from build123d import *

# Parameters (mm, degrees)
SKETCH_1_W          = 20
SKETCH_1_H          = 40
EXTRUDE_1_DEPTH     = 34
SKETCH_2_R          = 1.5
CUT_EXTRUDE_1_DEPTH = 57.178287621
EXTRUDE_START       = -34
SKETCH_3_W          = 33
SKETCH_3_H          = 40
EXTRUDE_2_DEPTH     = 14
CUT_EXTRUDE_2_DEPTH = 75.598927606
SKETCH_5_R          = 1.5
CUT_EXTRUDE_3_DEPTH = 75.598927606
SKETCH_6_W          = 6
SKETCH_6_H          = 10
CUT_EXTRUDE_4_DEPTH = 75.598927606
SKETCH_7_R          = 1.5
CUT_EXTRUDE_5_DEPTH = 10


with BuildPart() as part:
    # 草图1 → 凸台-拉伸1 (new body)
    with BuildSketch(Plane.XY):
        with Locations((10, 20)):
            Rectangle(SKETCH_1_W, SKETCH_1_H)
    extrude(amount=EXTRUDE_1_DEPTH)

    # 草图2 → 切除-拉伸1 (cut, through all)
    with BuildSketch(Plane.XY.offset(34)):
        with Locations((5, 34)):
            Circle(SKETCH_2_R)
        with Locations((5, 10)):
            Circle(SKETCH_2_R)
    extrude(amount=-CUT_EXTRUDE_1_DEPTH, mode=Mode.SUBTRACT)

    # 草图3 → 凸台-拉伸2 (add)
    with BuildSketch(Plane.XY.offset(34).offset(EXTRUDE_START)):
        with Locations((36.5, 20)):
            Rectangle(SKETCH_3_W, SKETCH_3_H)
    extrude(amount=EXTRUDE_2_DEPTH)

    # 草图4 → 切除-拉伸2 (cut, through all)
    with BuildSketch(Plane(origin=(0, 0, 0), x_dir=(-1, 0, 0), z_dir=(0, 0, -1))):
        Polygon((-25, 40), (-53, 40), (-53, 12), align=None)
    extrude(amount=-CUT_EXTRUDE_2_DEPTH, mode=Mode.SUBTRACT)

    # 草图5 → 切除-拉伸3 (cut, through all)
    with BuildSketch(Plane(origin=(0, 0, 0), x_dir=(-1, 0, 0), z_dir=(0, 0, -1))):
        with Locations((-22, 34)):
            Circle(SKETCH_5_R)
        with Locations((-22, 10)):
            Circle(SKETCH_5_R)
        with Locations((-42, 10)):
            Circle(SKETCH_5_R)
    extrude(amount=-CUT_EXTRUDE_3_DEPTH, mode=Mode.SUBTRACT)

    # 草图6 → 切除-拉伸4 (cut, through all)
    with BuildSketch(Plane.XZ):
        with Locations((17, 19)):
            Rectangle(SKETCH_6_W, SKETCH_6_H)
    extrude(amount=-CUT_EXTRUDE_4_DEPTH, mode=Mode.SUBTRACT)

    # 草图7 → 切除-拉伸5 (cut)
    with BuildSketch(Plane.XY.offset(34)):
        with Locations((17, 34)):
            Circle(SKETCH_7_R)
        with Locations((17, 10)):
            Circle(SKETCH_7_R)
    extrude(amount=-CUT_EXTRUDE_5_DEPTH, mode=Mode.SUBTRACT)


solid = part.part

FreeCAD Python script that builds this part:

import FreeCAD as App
import Part
import Sketcher
from FreeCAD import Vector


def add_polygon(sketch, points):
    """Adds a closed chain of lines whose ends are joined by coincident constraints."""
    first, n = sketch.GeometryCount, len(points)
    for a, b in zip(points, points[1:] + points[:1]):
        sketch.addGeometry(Part.LineSegment(App.Vector(*a, 0), App.Vector(*b, 0)), False)
    for i in range(n):
        sketch.addConstraint(Sketcher.Constraint("Coincident", first + i, 2, first + (i + 1) % n, 1))

doc = App.newDocument("Part")
body = doc.addObject("PartDesign::Body", "Body")

# Sketch on XY plane
sketch1 = doc.addObject("Sketcher::SketchObject", "Sketch")
body.addObject(sketch1)
sketch1.AttachmentSupport = (doc.XY_Plane, [""])
sketch1.MapMode = "FlatFace"
add_polygon(sketch1, [(0, 40), (0, 0), (20, 0), (20, 40)])  # lines 0-3
sketch1.addConstraint([
    Sketcher.Constraint("Vertical", 0),
    Sketcher.Constraint("Horizontal", 1),
    Sketcher.Constraint("Vertical", 2),
    Sketcher.Constraint("Horizontal", 3),
    Sketcher.Constraint("Coincident", 0, 2, -1, 1),
    Sketcher.Constraint("DistanceX", 1, 1, 1, 2, 20.0),
    Sketcher.Constraint("DistanceY", 0, 2, 0, 1, 40.0),
])
pad1 = doc.addObject("PartDesign::Pad", "Pad")
body.addObject(pad1)
pad1.Profile = sketch1
pad1.Length = 34

# Sketch on XY plane
sketch2 = doc.addObject("Sketcher::SketchObject", "Sketch001")
body.addObject(sketch2)
sketch2.AttachmentSupport = (doc.XY_Plane, [""])
sketch2.MapMode = "FlatFace"
sketch2.AttachmentOffset = App.Placement(Vector(0, 0, 34), App.Rotation())
sketch2.addGeometry([
    Part.Circle(Vector(5, 34, 0), Vector(0, 0, 1), 1.5),
    Part.Circle(Vector(5, 10, 0), Vector(0, 0, 1), 1.5),
], False)
sketch2.addConstraint([
    Sketcher.Constraint("Equal", 0, 1),
    Sketcher.Constraint("Vertical", 0, 3, 1, 3),
    Sketcher.Constraint("Diameter", 0, 3.0),
    Sketcher.Constraint("DistanceX", -1, 1, 0, 3, 5.0),
    Sketcher.Constraint("DistanceY", -1, 1, 0, 3, 34.0),
    Sketcher.Constraint("DistanceY", -1, 1, 1, 3, 10.0),
])
pocket1 = doc.addObject("PartDesign::Pocket", "Pocket")
body.addObject(pocket1)
pocket1.Profile = sketch2
pocket1.Type = "ThroughAll"

# Sketch on XY plane
sketch3 = doc.addObject("Sketcher::SketchObject", "Sketch002")
body.addObject(sketch3)
sketch3.AttachmentSupport = (doc.XY_Plane, [""])
sketch3.MapMode = "FlatFace"
add_polygon(sketch3, [(20, 40), (20, 0), (53, 0), (53, 40)])  # lines 0-3
sketch3.addConstraint([
    Sketcher.Constraint("Vertical", 0),
    Sketcher.Constraint("Horizontal", 1),
    Sketcher.Constraint("Vertical", 2),
    Sketcher.Constraint("Horizontal", 3),
    Sketcher.Constraint("PointOnObject", 0, 2, -1),
    Sketcher.Constraint("DistanceX", 1, 1, 1, 2, 33.0),
    Sketcher.Constraint("DistanceY", 0, 2, 0, 1, 40.0),
    Sketcher.Constraint("DistanceX", -1, 1, 0, 2, 20.0),
])
pad2 = doc.addObject("PartDesign::Pad", "Pad001")
body.addObject(pad2)
pad2.Profile = sketch3
pad2.Length = 14

# Sketch on XY plane
sketch4 = doc.addObject("Sketcher::SketchObject", "Sketch003")
body.addObject(sketch4)
sketch4.AttachmentSupport = (doc.XY_Plane, [""])
sketch4.MapMode = "FlatFace"
add_polygon(sketch4, [(25, 40), (53, 40), (53, 12)])  # lines 0-2
sketch4.addConstraint([
    Sketcher.Constraint("Horizontal", 0),
    Sketcher.Constraint("Vertical", 1),
    Sketcher.Constraint("Equal", 0, 1),
    Sketcher.Constraint("DistanceX", 0, 1, 0, 2, 28.0),
    Sketcher.Constraint("DistanceX", -1, 1, 0, 2, 53.0),
    Sketcher.Constraint("DistanceY", -1, 1, 0, 2, 40.0),
])
pocket2 = doc.addObject("PartDesign::Pocket", "Pocket001")
body.addObject(pocket2)
pocket2.Profile = sketch4
pocket2.Type = "ThroughAll"
pocket2.Reversed = True

# Sketch on XY plane
sketch5 = doc.addObject("Sketcher::SketchObject", "Sketch004")
body.addObject(sketch5)
sketch5.AttachmentSupport = (doc.XY_Plane, [""])
sketch5.MapMode = "FlatFace"
sketch5.addGeometry([
    Part.Circle(Vector(22, 34, 0), Vector(0, 0, 1), 1.5),
    Part.Circle(Vector(22, 10, 0), Vector(0, 0, 1), 1.5),
    Part.Circle(Vector(42, 10, 0), Vector(0, 0, 1), 1.5),
], False)
sketch5.addConstraint([
    Sketcher.Constraint("Equal", 0, 1),
    Sketcher.Constraint("Equal", 1, 2),
    Sketcher.Constraint("Horizontal", 1, 3, 2, 3),
    Sketcher.Constraint("Vertical", 0, 3, 1, 3),
    Sketcher.Constraint("Diameter", 0, 3.0),
    Sketcher.Constraint("DistanceX", -1, 1, 0, 3, 22.0),
    Sketcher.Constraint("DistanceY", -1, 1, 0, 3, 34.0),
    Sketcher.Constraint("DistanceY", -1, 1, 1, 3, 10.0),
    Sketcher.Constraint("DistanceX", -1, 1, 2, 3, 42.0),
])
pocket3 = doc.addObject("PartDesign::Pocket", "Pocket002")
body.addObject(pocket3)
pocket3.Profile = sketch5
pocket3.Type = "ThroughAll"
pocket3.Reversed = True

# Sketch on XZ plane
sketch6 = doc.addObject("Sketcher::SketchObject", "Sketch005")
body.addObject(sketch6)
sketch6.AttachmentSupport = (doc.XZ_Plane, [""])
sketch6.MapMode = "FlatFace"
add_polygon(sketch6, [(14, 24), (14, 14), (20, 14), (20, 24)])  # lines 0-3
sketch6.addConstraint([
    Sketcher.Constraint("Vertical", 0),
    Sketcher.Constraint("Horizontal", 1),
    Sketcher.Constraint("Vertical", 2),
    Sketcher.Constraint("Horizontal", 3),
    Sketcher.Constraint("DistanceX", 1, 1, 1, 2, 6.0),
    Sketcher.Constraint("DistanceY", 0, 2, 0, 1, 10.0),
    Sketcher.Constraint("DistanceX", -1, 1, 0, 2, 14.0),
    Sketcher.Constraint("DistanceY", -1, 1, 0, 2, 14.0),
])
pocket4 = doc.addObject("PartDesign::Pocket", "Pocket003")
body.addObject(pocket4)
pocket4.Profile = sketch6
pocket4.Type = "ThroughAll"

# Sketch on XY plane
sketch7 = doc.addObject("Sketcher::SketchObject", "Sketch006")
body.addObject(sketch7)
sketch7.AttachmentSupport = (doc.XY_Plane, [""])
sketch7.MapMode = "FlatFace"
sketch7.AttachmentOffset = App.Placement(Vector(0, 0, 34), App.Rotation())
sketch7.addGeometry([
    Part.Circle(Vector(17, 34, 0), Vector(0, 0, 1), 1.5),
    Part.Circle(Vector(17, 10, 0), Vector(0, 0, 1), 1.5),
], False)
sketch7.addConstraint([
    Sketcher.Constraint("Equal", 0, 1),
    Sketcher.Constraint("Vertical", 0, 3, 1, 3),
    Sketcher.Constraint("Diameter", 0, 3.0),
    Sketcher.Constraint("DistanceX", -1, 1, 0, 3, 17.0),
    Sketcher.Constraint("DistanceY", -1, 1, 0, 3, 34.0),
    Sketcher.Constraint("DistanceY", -1, 1, 1, 3, 10.0),
])
pocket5 = doc.addObject("PartDesign::Pocket", "Pocket004")
body.addObject(pocket5)
pocket5.Profile = sketch7
pocket5.Length = 10

doc.recompute()
